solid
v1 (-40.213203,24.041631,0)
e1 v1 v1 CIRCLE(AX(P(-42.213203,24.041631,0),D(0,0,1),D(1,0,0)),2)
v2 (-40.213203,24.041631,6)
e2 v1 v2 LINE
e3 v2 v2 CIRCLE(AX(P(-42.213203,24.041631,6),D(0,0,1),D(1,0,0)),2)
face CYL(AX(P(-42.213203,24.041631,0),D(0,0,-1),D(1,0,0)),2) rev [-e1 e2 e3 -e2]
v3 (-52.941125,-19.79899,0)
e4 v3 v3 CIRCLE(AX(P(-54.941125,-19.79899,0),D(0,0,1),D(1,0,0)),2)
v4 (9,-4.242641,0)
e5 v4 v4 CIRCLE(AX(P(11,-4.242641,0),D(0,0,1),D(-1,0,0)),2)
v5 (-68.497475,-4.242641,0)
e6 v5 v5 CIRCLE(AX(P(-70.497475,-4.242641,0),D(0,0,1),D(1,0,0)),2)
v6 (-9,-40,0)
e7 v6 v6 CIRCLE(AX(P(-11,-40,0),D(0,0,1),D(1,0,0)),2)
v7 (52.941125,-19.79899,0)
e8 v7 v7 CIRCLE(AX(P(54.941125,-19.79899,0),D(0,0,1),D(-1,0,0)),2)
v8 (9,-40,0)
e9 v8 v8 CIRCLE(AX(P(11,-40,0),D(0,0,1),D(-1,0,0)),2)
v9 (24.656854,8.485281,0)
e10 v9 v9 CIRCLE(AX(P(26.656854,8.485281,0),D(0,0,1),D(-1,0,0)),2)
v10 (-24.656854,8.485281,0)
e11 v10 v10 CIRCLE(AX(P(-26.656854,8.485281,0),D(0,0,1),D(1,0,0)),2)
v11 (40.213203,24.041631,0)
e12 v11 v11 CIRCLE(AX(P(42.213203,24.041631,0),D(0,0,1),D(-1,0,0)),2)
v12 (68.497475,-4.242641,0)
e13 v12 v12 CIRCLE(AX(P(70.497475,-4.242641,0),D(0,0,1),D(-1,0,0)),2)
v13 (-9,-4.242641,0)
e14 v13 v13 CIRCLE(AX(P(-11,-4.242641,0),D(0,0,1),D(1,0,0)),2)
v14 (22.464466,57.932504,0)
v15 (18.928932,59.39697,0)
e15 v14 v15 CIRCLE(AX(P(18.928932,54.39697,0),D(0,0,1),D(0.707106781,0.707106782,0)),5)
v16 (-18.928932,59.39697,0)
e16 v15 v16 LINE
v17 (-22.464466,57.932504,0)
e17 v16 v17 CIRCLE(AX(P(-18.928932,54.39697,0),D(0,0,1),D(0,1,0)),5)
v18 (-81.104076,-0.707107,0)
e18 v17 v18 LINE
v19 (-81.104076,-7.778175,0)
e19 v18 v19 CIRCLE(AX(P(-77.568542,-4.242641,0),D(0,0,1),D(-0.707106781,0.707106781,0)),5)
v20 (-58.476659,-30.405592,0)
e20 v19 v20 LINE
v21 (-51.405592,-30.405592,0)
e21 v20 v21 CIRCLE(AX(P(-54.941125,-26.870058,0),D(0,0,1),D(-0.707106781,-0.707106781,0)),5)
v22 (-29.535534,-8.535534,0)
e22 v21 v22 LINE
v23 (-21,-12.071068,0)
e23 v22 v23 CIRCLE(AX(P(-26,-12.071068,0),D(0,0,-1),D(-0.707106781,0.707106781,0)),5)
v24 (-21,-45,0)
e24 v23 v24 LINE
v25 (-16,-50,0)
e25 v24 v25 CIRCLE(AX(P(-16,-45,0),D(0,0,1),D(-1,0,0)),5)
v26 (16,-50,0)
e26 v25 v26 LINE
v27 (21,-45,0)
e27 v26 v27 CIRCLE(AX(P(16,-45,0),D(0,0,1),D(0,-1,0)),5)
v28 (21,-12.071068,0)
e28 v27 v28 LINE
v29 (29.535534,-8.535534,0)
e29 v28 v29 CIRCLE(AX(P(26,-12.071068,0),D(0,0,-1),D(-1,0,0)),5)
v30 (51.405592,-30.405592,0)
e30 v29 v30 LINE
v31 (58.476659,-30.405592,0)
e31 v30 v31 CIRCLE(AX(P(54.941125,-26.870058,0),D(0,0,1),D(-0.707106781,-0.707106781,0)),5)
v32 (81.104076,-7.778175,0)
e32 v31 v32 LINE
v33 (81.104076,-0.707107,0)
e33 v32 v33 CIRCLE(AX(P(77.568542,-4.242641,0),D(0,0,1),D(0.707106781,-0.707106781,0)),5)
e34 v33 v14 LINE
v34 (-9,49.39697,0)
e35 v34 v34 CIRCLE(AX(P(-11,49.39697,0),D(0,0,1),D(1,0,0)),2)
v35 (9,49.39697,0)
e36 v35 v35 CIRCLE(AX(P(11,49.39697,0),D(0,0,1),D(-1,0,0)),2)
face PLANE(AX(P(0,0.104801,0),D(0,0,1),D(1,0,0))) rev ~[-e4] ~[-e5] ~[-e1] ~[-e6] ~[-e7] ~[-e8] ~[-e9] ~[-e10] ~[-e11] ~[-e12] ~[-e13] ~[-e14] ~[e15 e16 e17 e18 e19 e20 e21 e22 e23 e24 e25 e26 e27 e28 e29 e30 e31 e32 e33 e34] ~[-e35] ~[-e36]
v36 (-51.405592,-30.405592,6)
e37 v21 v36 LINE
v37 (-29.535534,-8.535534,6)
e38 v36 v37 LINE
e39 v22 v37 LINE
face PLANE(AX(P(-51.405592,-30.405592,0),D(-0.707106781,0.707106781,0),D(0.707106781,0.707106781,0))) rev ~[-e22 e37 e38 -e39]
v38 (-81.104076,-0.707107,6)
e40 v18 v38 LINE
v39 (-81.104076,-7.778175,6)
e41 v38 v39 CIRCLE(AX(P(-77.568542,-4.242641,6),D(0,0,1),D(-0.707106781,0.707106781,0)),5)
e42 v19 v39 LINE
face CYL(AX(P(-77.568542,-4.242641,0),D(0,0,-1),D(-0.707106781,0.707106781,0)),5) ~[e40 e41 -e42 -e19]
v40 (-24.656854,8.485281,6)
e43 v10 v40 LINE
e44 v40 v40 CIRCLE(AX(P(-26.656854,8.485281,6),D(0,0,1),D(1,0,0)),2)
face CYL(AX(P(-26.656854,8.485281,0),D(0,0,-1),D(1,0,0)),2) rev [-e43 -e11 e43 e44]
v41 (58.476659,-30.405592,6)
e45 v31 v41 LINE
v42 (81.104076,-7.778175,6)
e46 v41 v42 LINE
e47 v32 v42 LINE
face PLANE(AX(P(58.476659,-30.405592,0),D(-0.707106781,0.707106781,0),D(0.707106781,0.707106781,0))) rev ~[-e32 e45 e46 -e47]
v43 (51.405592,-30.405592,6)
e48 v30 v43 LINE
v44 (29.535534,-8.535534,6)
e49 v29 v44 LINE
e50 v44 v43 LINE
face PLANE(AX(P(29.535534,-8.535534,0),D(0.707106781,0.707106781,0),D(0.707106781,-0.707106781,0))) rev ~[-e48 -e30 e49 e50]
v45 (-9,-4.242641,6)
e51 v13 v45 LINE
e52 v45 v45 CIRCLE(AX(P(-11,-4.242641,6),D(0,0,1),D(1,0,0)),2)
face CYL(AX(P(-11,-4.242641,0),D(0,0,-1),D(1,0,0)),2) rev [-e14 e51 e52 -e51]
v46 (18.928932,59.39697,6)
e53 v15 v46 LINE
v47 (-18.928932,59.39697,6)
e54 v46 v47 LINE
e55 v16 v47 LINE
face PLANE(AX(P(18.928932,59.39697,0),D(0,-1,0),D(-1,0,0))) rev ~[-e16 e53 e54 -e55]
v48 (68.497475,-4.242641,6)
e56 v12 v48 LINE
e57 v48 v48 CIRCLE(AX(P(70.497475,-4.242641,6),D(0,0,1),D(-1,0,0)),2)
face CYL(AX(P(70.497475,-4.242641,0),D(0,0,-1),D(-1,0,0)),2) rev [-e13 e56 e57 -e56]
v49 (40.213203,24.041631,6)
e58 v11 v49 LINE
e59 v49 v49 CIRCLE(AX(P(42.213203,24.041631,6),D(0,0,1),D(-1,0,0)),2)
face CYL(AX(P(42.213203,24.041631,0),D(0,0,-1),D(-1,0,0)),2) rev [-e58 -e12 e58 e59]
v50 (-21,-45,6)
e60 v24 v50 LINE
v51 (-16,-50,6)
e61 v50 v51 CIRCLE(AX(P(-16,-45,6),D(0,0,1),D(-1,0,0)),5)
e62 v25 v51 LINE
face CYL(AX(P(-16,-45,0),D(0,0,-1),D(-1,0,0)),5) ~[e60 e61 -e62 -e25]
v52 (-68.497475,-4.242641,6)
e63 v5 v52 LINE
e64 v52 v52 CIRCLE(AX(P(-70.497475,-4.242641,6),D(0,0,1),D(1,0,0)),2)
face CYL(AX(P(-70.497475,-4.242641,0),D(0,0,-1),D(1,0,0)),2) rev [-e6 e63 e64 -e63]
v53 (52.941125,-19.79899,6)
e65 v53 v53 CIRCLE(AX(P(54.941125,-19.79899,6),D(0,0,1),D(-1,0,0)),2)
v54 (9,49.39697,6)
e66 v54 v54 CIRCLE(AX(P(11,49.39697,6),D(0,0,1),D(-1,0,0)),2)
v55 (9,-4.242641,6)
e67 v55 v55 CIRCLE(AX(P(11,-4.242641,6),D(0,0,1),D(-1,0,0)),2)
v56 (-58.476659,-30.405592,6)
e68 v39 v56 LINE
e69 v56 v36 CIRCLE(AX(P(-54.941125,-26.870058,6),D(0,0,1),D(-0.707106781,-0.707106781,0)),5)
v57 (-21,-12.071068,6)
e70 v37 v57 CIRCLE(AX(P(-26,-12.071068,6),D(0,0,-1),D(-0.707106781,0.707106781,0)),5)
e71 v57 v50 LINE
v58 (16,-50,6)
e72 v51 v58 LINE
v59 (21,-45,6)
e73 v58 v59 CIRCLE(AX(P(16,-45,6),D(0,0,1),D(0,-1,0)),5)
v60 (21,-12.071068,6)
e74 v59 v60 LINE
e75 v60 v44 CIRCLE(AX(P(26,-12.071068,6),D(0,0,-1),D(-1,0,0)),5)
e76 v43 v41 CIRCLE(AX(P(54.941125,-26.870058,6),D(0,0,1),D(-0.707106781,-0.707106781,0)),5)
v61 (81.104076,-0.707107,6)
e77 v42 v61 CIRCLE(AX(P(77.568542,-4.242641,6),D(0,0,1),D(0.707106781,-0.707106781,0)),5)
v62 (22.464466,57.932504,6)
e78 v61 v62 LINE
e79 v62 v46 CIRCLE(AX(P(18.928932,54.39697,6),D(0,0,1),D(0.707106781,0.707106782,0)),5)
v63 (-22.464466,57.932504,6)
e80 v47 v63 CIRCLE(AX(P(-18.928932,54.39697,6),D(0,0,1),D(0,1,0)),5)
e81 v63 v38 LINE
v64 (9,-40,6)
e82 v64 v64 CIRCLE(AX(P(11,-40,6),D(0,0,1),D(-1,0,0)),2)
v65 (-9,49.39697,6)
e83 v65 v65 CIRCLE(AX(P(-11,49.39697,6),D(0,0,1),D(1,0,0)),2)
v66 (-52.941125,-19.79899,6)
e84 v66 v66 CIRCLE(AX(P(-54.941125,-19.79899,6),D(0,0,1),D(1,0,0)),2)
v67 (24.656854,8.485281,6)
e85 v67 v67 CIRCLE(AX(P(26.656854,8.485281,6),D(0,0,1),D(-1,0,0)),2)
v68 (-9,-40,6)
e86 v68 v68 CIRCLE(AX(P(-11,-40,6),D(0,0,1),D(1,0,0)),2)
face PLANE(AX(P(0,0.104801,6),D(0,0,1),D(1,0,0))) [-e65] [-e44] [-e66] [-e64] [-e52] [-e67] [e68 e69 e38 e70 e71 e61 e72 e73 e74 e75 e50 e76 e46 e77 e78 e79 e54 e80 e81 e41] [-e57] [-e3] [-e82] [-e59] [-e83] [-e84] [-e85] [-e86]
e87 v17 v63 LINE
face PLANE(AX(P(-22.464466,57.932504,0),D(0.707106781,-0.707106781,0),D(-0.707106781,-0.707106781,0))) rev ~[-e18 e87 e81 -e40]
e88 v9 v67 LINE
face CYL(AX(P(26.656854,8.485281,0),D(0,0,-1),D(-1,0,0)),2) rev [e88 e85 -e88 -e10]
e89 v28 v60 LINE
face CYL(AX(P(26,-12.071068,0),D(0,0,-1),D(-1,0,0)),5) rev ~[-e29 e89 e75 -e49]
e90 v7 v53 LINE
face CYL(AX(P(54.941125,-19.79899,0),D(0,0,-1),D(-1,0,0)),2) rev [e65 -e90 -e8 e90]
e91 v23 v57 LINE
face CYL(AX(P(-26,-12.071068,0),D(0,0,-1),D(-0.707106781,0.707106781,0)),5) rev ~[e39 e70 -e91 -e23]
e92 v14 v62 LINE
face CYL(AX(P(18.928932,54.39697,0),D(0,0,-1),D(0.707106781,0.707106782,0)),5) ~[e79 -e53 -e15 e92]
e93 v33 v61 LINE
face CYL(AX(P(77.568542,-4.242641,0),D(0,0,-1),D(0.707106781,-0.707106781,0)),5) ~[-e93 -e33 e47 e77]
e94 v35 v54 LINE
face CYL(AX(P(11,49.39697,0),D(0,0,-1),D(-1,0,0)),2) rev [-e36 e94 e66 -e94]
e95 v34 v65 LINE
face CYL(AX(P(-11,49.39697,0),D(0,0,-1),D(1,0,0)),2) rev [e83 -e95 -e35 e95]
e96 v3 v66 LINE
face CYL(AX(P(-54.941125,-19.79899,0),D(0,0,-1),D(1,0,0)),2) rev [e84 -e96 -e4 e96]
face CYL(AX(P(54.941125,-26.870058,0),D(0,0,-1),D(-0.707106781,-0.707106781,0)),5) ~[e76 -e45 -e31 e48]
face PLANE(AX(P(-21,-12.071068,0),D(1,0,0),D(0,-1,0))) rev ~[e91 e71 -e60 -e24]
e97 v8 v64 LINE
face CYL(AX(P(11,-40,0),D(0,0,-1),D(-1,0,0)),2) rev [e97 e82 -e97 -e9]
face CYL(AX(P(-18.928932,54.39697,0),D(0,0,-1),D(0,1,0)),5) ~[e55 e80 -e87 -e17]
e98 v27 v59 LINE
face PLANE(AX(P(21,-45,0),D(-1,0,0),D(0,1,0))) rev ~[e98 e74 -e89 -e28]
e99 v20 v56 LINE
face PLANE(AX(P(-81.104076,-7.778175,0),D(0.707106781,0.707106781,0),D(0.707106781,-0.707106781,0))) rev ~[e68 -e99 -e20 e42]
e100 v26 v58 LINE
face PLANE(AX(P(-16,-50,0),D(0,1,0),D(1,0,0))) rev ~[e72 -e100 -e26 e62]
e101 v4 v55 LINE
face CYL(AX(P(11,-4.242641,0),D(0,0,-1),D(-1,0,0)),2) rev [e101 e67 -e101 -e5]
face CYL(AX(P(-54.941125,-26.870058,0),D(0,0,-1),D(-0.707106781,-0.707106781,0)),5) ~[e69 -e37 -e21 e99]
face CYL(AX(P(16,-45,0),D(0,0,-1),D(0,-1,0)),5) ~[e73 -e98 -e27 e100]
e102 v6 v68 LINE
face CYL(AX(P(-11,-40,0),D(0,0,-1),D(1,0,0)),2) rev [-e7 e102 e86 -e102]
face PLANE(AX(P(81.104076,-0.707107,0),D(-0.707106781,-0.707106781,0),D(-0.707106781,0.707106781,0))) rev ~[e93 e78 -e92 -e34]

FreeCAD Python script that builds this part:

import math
import FreeCAD as App
import Part
import Sketcher
Q = App.Units.Quantity

doc = App.newDocument("Part")
body = doc.addObject("PartDesign::Body", "Body")

# Sketch on XY plane
sketch1 = body.newObject("Sketcher::SketchObject", "Sketch")
sketch1.AttachmentSupport = (doc.getObject("XY_Plane"), [""])
sketch1.MapMode = "FlatFace"
sketch1.addGeometry(Part.LineSegment(App.Vector(-16, -50, 0), App.Vector(16, -50, 0)), False)
sketch1.addGeometry(Part.ArcOfCircle(Part.Circle(App.Vector(16, -45, 0), App.Vector(0, 0, 1), 5), math.radians(-90), math.radians(0)), False)
sketch1.addGeometry(Part.LineSegment(App.Vector(21, -45, 0), App.Vector(21, -12.071068, 0)), False)
sketch1.addGeometry(Part.ArcOfCircle(Part.Circle(App.Vector(26, -12.071068, 0), App.Vector(0, 0, 1), 5), math.radians(45), math.radians(180)), False)
sketch1.addGeometry(Part.LineSegment(App.Vector(29.535534, -8.535534, 0), App.Vector(51.405592, -30.405592, 0)), False)
sketch1.addGeometry(Part.ArcOfCircle(Part.Circle(App.Vector(54.941125, -26.870058, 0), App.Vector(0, 0, 1), 5), math.radians(-135), math.radians(-45)), False)
sketch1.addGeometry(Part.LineSegment(App.Vector(58.476659, -30.405592, 0), App.Vector(81.104076, -7.778175, 0)), False)
sketch1.addGeometry(Part.ArcOfCircle(Part.Circle(App.Vector(77.568542, -4.242641, 0), App.Vector(0, 0, 1), 5), math.radians(-45), math.radians(45)), False)
sketch1.addGeometry(Part.LineSegment(App.Vector(81.104076, -0.707107, 0), App.Vector(22.464466, 57.932504, 0)), False)
sketch1.addGeometry(Part.ArcOfCircle(Part.Circle(App.Vector(18.928932, 54.39697, 0), App.Vector(0, 0, 1), 5), math.radians(45), math.radians(90)), False)
sketch1.addGeometry(Part.LineSegment(App.Vector(18.928932, 59.39697, 0), App.Vector(-18.928932, 59.39697, 0)), False)
sketch1.addGeometry(Part.ArcOfCircle(Part.Circle(App.Vector(-18.928932, 54.39697, 0), App.Vector(0, 0, 1), 5), math.radians(90), math.radians(135)), False)
sketch1.addGeometry(Part.LineSegment(App.Vector(-22.464466, 57.932504, 0), App.Vector(-81.104076, -0.707107, 0)), False)
sketch1.addGeometry(Part.ArcOfCircle(Part.Circle(App.Vector(-77.568542, -4.242641, 0), App.Vector(0, 0, 1), 5), math.radians(135), math.radians(225)), False)
sketch1.addGeometry(Part.LineSegment(App.Vector(-81.104076, -7.778175, 0), App.Vector(-58.476659, -30.405592, 0)), False)
sketch1.addGeometry(Part.ArcOfCircle(Part.Circle(App.Vector(-54.941125, -26.870058, 0), App.Vector(0, 0, 1), 5), math.radians(-135), math.radians(-45)), False)
sketch1.addGeometry(Part.LineSegment(App.Vector(-51.405592, -30.405592, 0), App.Vector(-29.535534, -8.535534, 0)), False)
sketch1.addGeometry(Part.ArcOfCircle(Part.Circle(App.Vector(-26, -12.071068, 0), App.Vector(0, 0, 1), 5), math.radians(0), math.radians(135)), False)
sketch1.addGeometry(Part.LineSegment(App.Vector(-21, -12.071068, 0), App.Vector(-21, -45, 0)), False)
sketch1.addGeometry(Part.ArcOfCircle(Part.Circle(App.Vector(-16, -45, 0), App.Vector(0, 0, 1), 5), math.radians(180), math.radians(270)), False)
sketch1.addGeometry(Part.Circle(App.Vector(-54.941125, -19.79899, 0), App.Vector(0, 0, 1), 2), False)
sketch1.addGeometry(Part.Circle(App.Vector(-11, -40, 0), App.Vector(0, 0, 1), 2), False)
sketch1.addGeometry(Part.Circle(App.Vector(-70.497475, -4.242641, 0), App.Vector(0, 0, 1), 2), False)
sketch1.addGeometry(Part.Circle(App.Vector(-11, -4.242641, 0), App.Vector(0, 0, 1), 2), False)
sketch1.addGeometry(Part.Circle(App.Vector(11, -40, 0), App.Vector(0, 0, 1), 2), False)
sketch1.addGeometry(Part.Circle(App.Vector(54.941125, -19.79899, 0), App.Vector(0, 0, 1), 2), False)
sketch1.addGeometry(Part.Circle(App.Vector(11, -4.242641, 0), App.Vector(0, 0, 1), 2), False)
sketch1.addGeometry(Part.Circle(App.Vector(70.497475, -4.242641, 0), App.Vector(0, 0, 1), 2), False)
sketch1.addGeometry(Part.Circle(App.Vector(-42.213203, 24.041631, 0), App.Vector(0, 0, 1), 2), False)
sketch1.addGeometry(Part.Circle(App.Vector(-26.656854, 8.485281, 0), App.Vector(0, 0, 1), 2), False)
sketch1.addGeometry(Part.Circle(App.Vector(-11, 49.39697, 0), App.Vector(0, 0, 1), 2), False)
sketch1.addGeometry(Part.Circle(App.Vector(26.656854, 8.485281, 0), App.Vector(0, 0, 1), 2), False)
sketch1.addGeometry(Part.Circle(App.Vector(42.213203, 24.041631, 0), App.Vector(0, 0, 1), 2), False)
sketch1.addGeometry(Part.Circle(App.Vector(11, 49.39697, 0), App.Vector(0, 0, 1), 2), False)
sketch1.addConstraint(Sketcher.Constraint("Tangent", 0, 2, 1, 1))
sketch1.addConstraint(Sketcher.Constraint("Tangent", 1, 2, 2, 1))
sketch1.addConstraint(Sketcher.Constraint("Tangent", 2, 2, 3, 2))
sketch1.addConstraint(Sketcher.Constraint("Tangent", 3, 1, 4, 1))
sketch1.addConstraint(Sketcher.Constraint("Tangent", 4, 2, 5, 1))
sketch1.addConstraint(Sketcher.Constraint("Tangent", 5, 2, 6, 1))
sketch1.addConstraint(Sketcher.Constraint("Tangent", 6, 2, 7, 1))
sketch1.addConstraint(Sketcher.Constraint("Tangent", 7, 2, 8, 1))
sketch1.addConstraint(Sketcher.Constraint("Tangent", 8, 2, 9, 1))
sketch1.addConstraint(Sketcher.Constraint("Tangent", 9, 2, 10, 1))
sketch1.addConstraint(Sketcher.Constraint("Tangent", 10, 2, 11, 1))
sketch1.addConstraint(Sketcher.Constraint("Tangent", 11, 2, 12, 1))
sketch1.addConstraint(Sketcher.Constraint("Tangent", 12, 2, 13, 1))
sketch1.addConstraint(Sketcher.Constraint("Tangent", 13, 2, 14, 1))
sketch1.addConstraint(Sketcher.Constraint("Tangent", 14, 2, 15, 1))
sketch1.addConstraint(Sketcher.Constraint("Tangent", 15, 2, 16, 1))
sketch1.addConstraint(Sketcher.Constraint("Tangent", 16, 2, 17, 2))
sketch1.addConstraint(Sketcher.Constraint("Tangent", 17, 1, 18, 1))
sketch1.addConstraint(Sketcher.Constraint("Tangent", 18, 2, 19, 1))
sketch1.addConstraint(Sketcher.Constraint("Tangent", 19, 2, 0, 1))
sketch1.addConstraint(Sketcher.Constraint("Horizontal", 0))
sketch1.addConstraint(Sketcher.Constraint("Vertical", 2))
sketch1.addConstraint(Sketcher.Constraint("Horizontal", 10))
sketch1.addConstraint(Sketcher.Constraint("Vertical", 18))
sketch1.addConstraint(Sketcher.Constraint("Equal", 1, 3))
sketch1.addConstraint(Sketcher.Constraint("Equal", 3, 5))
sketch1.addConstraint(Sketcher.Constraint("Equal", 5, 7))
sketch1.addConstraint(Sketcher.Constraint("Equal", 7, 9))
sketch1.addConstraint(Sketcher.Constraint("Equal", 9, 11))
sketch1.addConstraint(Sketcher.Constraint("Equal", 11, 13))
sketch1.addConstraint(Sketcher.Constraint("Equal", 13, 15))
sketch1.addConstraint(Sketcher.Constraint("Equal", 15, 17))
sketch1.addConstraint(Sketcher.Constraint("Equal", 17, 19))
sketch1.addConstraint(Sketcher.Constraint("Equal", 20, 21))
sketch1.addConstraint(Sketcher.Constraint("Equal", 21, 22))
sketch1.addConstraint(Sketcher.Constraint("Equal", 22, 23))
sketch1.addConstraint(Sketcher.Constraint("Equal", 23, 24))
sketch1.addConstraint(Sketcher.Constraint("Equal", 24, 25))
sketch1.addConstraint(Sketcher.Constraint("Equal", 25, 26))
sketch1.addConstraint(Sketcher.Constraint("Equal", 26, 27))
sketch1.addConstraint(Sketcher.Constraint("Equal", 27, 28))
sketch1.addConstraint(Sketcher.Constraint("Equal", 28, 29))
sketch1.addConstraint(Sketcher.Constraint("Equal", 29, 30))
sketch1.addConstraint(Sketcher.Constraint("Equal", 30, 31))
sketch1.addConstraint(Sketcher.Constraint("Equal", 31, 32))
sketch1.addConstraint(Sketcher.Constraint("Equal", 32, 33))
sketch1.addConstraint(Sketcher.Constraint("Symmetric", 7, 3, 13, 3, -2))
sketch1.addConstraint(Sketcher.Constraint("Symmetric", 5, 3, 15, 3, -2))
sketch1.addConstraint(Sketcher.Constraint("Symmetric", 3, 3, 17, 3, -2))
sketch1.addConstraint(Sketcher.Constraint("Symmetric", 21, 3, 24, 3, -2))
sketch1.addConstraint(Sketcher.Constraint("Symmetric", 20, 3, 25, 3, -2))
sketch1.addConstraint(Sketcher.Constraint("Symmetric", 23, 3, 26, 3, -2))
sketch1.addConstraint(Sketcher.Constraint("Symmetric", 22, 3, 27, 3, -2))
sketch1.addConstraint(Sketcher.Constraint("Symmetric", 29, 3, 31, 3, -2))
sketch1.addConstraint(Sketcher.Constraint("Symmetric", 28, 3, 32, 3, -2))
sketch1.addConstraint(Sketcher.Constraint("Symmetric", 30, 3, 33, 3, -2))
sketch1.addConstraint(Sketcher.Constraint("Perpendicular", 4, 6))
sketch1.addConstraint(Sketcher.Constraint("Perpendicular", 6, 8))
sketch1.addConstraint(Sketcher.Constraint("Perpendicular", 8, 12))
sketch1.addConstraint(Sketcher.Constraint("Perpendicular", 12, 14))
sketch1.addConstraint(Sketcher.Constraint("Horizontal", 13, 3, 22, 3))
sketch1.addConstraint(Sketcher.Constraint("Horizontal", 22, 3, 23, 3))
sketch1.addConstraint(Sketcher.Constraint("Vertical", 15, 3, 20, 3))
sketch1.addConstraint(Sketcher.Constraint("Vertical", 21, 3, 23, 3))
sketch1.addConstraint(Sketcher.Constraint("Vertical", 23, 3, 30, 3))
sketch1.addConstraint(Sketcher.Constraint("Diameter", 20, Q("4 mm")))
sketch1.addConstraint(Sketcher.Constraint("Radius", 1, Q("5 mm")))
sketch1.addConstraint(Sketcher.Constraint("DistanceX", 0, 1, 0, 2, Q("32 mm")))
sketch1.addConstraint(Sketcher.Constraint("Distance", 6, Q("32 mm")))
sketch1.addConstraint(Sketcher.Constraint("DistanceY", 1, 3, -1, 1, Q("45 mm")))
sketch1.addConstraint(Sketcher.Constraint("DistanceX", 21, 3, -1, 1, Q("11 mm")))
sketch1.addConstraint(Sketcher.Constraint("DistanceY", 21, 3, -1, 1, Q("40 mm")))
sketch1.addConstraint(Sketcher.Constraint("DistanceY", 30, 3, 11, 3, Q("5 mm")))
sketch1.addConstraint(Sketcher.Constraint("DistanceY", 17, 3, 28, 3, Q("36.112698 mm")))
sketch1.addConstraint(Sketcher.Constraint("DistanceY", 4, 2, 25, 3, Q("10.606602 mm")))
sketch1.addConstraint(Sketcher.Constraint("DistanceX", 27, 3, 6, 2, Q("10.606602 mm")))
sketch1.addConstraint(Sketcher.Constraint("DistanceX", 11, 3, 8, 2, Q("41.393398 mm")))
sketch1.addConstraint(Sketcher.Constraint("DistanceY", 2, 1, 2, 2, Q("32.928932 mm")))
sketch1.addConstraint(Sketcher.Constraint("DistanceY", 7, 3, -1, 1, Q("4.242641 mm")))
sketch1.addConstraint(Sketcher.Constraint("DistanceY", -1, 1, 29, 3, Q("8.485281 mm")))
sketch1.addConstraint(Sketcher.Constraint("DistanceX", 28, 3, 11, 3, Q("23.284271 mm")))
sketch1.addConstraint(Sketcher.Constraint("DistanceX", 28, 3, 29, 3, Q("15.556349 mm")))
pad1 = body.newObject("PartDesign::Pad", "Pad")
pad1.Profile = sketch1
pad1.Length = 6

doc.recompute()
